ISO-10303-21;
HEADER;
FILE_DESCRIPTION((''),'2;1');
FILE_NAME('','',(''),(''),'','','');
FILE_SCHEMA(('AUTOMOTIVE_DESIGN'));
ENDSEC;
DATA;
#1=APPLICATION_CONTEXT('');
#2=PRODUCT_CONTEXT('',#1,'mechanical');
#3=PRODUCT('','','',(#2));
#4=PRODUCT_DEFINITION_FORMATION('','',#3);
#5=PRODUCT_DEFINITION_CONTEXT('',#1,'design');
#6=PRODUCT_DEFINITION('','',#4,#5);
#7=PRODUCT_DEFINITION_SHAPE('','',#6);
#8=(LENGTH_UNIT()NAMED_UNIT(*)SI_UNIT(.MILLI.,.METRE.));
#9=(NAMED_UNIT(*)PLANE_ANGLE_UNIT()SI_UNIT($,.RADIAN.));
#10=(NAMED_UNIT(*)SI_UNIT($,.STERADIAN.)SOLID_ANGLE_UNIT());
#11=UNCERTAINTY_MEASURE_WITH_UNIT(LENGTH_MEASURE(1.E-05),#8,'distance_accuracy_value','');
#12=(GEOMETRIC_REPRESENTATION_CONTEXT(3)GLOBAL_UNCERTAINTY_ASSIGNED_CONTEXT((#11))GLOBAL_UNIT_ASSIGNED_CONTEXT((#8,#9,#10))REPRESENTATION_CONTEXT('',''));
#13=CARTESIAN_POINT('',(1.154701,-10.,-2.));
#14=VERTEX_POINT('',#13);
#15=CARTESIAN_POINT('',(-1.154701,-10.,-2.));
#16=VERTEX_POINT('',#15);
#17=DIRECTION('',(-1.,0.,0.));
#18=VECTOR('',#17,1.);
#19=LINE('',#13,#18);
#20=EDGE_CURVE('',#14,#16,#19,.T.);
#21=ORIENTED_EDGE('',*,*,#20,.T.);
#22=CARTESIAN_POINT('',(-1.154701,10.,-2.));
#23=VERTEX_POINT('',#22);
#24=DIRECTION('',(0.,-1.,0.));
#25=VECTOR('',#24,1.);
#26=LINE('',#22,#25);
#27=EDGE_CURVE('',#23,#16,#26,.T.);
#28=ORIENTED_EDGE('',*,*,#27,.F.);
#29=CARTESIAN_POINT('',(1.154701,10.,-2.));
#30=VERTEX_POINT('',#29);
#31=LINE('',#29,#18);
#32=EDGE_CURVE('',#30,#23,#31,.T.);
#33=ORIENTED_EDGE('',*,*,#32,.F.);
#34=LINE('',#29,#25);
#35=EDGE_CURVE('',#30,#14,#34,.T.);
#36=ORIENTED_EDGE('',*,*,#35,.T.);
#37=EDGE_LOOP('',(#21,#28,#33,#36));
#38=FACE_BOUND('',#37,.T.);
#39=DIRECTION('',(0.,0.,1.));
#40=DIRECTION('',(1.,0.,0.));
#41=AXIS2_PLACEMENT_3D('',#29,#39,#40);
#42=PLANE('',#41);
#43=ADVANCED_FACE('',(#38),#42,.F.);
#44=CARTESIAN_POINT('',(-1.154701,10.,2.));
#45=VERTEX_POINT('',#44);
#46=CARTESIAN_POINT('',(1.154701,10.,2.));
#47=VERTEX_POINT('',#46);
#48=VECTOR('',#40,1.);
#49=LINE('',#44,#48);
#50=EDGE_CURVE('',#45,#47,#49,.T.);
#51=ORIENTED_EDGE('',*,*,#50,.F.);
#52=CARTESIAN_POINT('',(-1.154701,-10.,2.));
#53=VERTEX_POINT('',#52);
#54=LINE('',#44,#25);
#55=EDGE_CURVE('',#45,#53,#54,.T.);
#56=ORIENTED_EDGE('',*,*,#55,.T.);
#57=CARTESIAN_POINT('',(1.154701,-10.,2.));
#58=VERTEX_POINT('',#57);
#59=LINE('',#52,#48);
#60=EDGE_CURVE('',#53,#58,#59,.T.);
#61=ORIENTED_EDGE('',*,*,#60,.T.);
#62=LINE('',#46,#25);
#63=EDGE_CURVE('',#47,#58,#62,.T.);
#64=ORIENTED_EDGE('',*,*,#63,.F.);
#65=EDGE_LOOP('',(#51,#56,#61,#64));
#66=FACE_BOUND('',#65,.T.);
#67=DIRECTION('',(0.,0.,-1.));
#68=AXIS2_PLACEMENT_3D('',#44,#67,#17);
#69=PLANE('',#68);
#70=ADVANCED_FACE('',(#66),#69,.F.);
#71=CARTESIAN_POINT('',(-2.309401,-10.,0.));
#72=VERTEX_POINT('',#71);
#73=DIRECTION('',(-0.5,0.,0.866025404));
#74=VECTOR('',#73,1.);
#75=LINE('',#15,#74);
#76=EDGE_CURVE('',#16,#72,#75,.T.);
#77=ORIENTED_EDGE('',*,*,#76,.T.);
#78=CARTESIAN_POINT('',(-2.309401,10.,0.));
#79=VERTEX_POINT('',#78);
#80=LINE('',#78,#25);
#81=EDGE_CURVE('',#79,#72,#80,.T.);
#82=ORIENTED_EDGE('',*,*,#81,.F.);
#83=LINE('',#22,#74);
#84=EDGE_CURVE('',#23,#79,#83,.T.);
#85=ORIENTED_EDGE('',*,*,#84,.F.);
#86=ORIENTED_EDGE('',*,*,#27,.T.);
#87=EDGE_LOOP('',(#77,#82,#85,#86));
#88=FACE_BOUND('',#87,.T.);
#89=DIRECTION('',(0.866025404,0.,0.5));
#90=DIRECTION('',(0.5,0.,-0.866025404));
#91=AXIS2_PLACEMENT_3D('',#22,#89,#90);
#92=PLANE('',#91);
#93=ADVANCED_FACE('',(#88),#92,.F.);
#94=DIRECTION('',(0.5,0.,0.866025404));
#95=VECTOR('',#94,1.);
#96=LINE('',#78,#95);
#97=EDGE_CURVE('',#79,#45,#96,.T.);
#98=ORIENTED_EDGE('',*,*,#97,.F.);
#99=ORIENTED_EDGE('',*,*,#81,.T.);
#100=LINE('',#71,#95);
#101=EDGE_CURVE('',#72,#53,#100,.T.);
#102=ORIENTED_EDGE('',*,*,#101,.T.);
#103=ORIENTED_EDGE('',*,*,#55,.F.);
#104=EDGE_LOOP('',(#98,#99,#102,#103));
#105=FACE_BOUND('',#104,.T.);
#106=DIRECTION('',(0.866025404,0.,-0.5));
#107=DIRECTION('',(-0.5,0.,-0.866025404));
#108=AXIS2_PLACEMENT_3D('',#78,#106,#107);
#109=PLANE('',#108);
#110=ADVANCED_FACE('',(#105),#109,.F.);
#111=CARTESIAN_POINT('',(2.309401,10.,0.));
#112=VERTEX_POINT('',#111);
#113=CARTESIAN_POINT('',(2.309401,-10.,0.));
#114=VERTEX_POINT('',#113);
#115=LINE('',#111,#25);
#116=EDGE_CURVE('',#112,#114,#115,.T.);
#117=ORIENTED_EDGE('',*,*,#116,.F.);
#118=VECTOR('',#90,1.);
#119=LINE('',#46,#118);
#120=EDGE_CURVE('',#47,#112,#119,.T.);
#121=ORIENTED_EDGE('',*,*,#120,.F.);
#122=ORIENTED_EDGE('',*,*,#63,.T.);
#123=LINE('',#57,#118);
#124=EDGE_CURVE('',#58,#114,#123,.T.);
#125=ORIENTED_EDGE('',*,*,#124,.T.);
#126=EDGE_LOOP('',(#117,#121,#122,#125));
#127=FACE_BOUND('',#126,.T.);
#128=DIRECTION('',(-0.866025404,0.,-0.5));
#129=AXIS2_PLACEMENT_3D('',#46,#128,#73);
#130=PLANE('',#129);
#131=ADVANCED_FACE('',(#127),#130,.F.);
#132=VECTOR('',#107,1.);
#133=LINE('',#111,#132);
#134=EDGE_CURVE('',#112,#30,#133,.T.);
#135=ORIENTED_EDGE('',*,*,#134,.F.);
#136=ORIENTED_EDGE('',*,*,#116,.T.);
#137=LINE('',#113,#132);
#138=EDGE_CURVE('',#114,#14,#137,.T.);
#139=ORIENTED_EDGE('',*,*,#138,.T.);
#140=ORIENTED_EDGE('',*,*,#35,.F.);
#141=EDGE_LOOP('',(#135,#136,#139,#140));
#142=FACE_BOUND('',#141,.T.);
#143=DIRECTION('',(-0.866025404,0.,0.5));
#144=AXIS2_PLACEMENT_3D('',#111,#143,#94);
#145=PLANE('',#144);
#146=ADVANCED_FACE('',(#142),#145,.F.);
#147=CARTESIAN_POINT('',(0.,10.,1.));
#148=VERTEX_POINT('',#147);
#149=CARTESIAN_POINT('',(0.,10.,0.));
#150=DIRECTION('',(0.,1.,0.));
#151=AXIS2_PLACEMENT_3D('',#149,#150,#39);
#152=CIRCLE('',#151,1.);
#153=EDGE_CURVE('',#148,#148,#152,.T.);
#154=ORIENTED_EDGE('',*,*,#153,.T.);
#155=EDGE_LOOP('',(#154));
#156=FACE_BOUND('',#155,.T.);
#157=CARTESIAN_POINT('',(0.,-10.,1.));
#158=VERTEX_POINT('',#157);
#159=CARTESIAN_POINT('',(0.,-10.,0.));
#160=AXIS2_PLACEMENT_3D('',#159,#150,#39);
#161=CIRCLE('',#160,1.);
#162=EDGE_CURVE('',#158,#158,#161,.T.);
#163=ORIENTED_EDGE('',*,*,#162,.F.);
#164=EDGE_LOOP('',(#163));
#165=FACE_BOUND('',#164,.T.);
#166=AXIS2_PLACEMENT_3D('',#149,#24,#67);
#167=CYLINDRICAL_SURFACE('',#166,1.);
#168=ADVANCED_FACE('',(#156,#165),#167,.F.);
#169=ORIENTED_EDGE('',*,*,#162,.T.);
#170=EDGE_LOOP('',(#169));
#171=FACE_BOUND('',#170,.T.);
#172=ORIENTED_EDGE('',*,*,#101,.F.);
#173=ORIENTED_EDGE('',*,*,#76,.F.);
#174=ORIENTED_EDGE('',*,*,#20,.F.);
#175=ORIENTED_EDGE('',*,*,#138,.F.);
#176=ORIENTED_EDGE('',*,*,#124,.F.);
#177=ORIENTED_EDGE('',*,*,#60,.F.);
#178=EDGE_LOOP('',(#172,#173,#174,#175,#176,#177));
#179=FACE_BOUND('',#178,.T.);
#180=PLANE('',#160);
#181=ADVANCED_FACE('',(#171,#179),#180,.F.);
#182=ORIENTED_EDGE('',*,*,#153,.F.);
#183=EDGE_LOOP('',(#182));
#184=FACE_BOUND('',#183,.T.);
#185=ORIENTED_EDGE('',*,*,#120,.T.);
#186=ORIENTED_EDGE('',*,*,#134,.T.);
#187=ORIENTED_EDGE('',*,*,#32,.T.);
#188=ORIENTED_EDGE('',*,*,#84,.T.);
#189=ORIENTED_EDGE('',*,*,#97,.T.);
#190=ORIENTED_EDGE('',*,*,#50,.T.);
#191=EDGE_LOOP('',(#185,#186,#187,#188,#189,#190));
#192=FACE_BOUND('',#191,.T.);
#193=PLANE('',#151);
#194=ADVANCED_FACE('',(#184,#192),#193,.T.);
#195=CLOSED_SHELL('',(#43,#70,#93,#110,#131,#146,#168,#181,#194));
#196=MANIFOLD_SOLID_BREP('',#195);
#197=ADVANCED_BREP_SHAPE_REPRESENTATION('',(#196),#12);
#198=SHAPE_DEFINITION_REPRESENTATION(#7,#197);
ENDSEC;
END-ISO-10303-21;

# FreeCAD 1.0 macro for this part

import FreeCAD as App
import Part
import Sketcher
Q = App.Units.Quantity


def add_polygon(sketch, points):
    """Adds a closed chain of lines whose ends are joined by coincident constraints."""
    first, n = sketch.GeometryCount, len(points)
    for a, b in zip(points, points[1:] + points[:1]):
        sketch.addGeometry(Part.LineSegment(App.Vector(*a, 0), App.Vector(*b, 0)), False)
    for i in range(n):
        sketch.addConstraint(Sketcher.Constraint("Coincident", first + i, 2, first + (i + 1) % n, 1))

doc = App.newDocument("Part")
body = doc.addObject("PartDesign::Body", "Body")

sketch1 = body.newObject("Sketcher::SketchObject", "Sketch")
sketch1.AttachmentSupport = (doc.getObject("XZ_Plane"), [""])
sketch1.MapMode = "FlatFace"
add_polygon(sketch1, [(2.3, 0), (1.2, -2), (-1.2, -2), (-2.3, 0), (-1.2, 2), (1.2, 2)])
sketch1.addGeometry(Part.Circle(App.Vector(0, 0, 0), App.Vector(0, 0, 1), 1), False)
sketch1.addConstraint([
    Sketcher.Constraint("Horizontal", 1),
    Sketcher.Constraint("Horizontal", 4),
    Sketcher.Constraint("Coincident", 6, 3, -1, 1),
    Sketcher.Constraint("Symmetric", 0, 2, 3, 2, -1, 1),
    Sketcher.Constraint("Symmetric", 2, 2, 5, 2, -1, 1),
    Sketcher.Constraint("PointOnObject", 2, 2, -1),
    Sketcher.Constraint("Parallel", 2, 5),
    Sketcher.Constraint("Vertical", 1, 2, 3, 2),
    Sketcher.Constraint("Diameter", 6, Q("2 mm")),
    Sketcher.Constraint("Angle", 0, Q("-120 deg")),
    Sketcher.Constraint("DistanceY", 0, 2, -1, 1, Q("2 mm")),
    Sketcher.Constraint("DistanceX", 1, 2, 1, 1, Q("2.309401 mm")),
])
pad1 = body.newObject("PartDesign::Pad", "Pad")
pad1.Profile = sketch1
pad1.Length = 20
pad1.Midplane = True

doc.recompute()
